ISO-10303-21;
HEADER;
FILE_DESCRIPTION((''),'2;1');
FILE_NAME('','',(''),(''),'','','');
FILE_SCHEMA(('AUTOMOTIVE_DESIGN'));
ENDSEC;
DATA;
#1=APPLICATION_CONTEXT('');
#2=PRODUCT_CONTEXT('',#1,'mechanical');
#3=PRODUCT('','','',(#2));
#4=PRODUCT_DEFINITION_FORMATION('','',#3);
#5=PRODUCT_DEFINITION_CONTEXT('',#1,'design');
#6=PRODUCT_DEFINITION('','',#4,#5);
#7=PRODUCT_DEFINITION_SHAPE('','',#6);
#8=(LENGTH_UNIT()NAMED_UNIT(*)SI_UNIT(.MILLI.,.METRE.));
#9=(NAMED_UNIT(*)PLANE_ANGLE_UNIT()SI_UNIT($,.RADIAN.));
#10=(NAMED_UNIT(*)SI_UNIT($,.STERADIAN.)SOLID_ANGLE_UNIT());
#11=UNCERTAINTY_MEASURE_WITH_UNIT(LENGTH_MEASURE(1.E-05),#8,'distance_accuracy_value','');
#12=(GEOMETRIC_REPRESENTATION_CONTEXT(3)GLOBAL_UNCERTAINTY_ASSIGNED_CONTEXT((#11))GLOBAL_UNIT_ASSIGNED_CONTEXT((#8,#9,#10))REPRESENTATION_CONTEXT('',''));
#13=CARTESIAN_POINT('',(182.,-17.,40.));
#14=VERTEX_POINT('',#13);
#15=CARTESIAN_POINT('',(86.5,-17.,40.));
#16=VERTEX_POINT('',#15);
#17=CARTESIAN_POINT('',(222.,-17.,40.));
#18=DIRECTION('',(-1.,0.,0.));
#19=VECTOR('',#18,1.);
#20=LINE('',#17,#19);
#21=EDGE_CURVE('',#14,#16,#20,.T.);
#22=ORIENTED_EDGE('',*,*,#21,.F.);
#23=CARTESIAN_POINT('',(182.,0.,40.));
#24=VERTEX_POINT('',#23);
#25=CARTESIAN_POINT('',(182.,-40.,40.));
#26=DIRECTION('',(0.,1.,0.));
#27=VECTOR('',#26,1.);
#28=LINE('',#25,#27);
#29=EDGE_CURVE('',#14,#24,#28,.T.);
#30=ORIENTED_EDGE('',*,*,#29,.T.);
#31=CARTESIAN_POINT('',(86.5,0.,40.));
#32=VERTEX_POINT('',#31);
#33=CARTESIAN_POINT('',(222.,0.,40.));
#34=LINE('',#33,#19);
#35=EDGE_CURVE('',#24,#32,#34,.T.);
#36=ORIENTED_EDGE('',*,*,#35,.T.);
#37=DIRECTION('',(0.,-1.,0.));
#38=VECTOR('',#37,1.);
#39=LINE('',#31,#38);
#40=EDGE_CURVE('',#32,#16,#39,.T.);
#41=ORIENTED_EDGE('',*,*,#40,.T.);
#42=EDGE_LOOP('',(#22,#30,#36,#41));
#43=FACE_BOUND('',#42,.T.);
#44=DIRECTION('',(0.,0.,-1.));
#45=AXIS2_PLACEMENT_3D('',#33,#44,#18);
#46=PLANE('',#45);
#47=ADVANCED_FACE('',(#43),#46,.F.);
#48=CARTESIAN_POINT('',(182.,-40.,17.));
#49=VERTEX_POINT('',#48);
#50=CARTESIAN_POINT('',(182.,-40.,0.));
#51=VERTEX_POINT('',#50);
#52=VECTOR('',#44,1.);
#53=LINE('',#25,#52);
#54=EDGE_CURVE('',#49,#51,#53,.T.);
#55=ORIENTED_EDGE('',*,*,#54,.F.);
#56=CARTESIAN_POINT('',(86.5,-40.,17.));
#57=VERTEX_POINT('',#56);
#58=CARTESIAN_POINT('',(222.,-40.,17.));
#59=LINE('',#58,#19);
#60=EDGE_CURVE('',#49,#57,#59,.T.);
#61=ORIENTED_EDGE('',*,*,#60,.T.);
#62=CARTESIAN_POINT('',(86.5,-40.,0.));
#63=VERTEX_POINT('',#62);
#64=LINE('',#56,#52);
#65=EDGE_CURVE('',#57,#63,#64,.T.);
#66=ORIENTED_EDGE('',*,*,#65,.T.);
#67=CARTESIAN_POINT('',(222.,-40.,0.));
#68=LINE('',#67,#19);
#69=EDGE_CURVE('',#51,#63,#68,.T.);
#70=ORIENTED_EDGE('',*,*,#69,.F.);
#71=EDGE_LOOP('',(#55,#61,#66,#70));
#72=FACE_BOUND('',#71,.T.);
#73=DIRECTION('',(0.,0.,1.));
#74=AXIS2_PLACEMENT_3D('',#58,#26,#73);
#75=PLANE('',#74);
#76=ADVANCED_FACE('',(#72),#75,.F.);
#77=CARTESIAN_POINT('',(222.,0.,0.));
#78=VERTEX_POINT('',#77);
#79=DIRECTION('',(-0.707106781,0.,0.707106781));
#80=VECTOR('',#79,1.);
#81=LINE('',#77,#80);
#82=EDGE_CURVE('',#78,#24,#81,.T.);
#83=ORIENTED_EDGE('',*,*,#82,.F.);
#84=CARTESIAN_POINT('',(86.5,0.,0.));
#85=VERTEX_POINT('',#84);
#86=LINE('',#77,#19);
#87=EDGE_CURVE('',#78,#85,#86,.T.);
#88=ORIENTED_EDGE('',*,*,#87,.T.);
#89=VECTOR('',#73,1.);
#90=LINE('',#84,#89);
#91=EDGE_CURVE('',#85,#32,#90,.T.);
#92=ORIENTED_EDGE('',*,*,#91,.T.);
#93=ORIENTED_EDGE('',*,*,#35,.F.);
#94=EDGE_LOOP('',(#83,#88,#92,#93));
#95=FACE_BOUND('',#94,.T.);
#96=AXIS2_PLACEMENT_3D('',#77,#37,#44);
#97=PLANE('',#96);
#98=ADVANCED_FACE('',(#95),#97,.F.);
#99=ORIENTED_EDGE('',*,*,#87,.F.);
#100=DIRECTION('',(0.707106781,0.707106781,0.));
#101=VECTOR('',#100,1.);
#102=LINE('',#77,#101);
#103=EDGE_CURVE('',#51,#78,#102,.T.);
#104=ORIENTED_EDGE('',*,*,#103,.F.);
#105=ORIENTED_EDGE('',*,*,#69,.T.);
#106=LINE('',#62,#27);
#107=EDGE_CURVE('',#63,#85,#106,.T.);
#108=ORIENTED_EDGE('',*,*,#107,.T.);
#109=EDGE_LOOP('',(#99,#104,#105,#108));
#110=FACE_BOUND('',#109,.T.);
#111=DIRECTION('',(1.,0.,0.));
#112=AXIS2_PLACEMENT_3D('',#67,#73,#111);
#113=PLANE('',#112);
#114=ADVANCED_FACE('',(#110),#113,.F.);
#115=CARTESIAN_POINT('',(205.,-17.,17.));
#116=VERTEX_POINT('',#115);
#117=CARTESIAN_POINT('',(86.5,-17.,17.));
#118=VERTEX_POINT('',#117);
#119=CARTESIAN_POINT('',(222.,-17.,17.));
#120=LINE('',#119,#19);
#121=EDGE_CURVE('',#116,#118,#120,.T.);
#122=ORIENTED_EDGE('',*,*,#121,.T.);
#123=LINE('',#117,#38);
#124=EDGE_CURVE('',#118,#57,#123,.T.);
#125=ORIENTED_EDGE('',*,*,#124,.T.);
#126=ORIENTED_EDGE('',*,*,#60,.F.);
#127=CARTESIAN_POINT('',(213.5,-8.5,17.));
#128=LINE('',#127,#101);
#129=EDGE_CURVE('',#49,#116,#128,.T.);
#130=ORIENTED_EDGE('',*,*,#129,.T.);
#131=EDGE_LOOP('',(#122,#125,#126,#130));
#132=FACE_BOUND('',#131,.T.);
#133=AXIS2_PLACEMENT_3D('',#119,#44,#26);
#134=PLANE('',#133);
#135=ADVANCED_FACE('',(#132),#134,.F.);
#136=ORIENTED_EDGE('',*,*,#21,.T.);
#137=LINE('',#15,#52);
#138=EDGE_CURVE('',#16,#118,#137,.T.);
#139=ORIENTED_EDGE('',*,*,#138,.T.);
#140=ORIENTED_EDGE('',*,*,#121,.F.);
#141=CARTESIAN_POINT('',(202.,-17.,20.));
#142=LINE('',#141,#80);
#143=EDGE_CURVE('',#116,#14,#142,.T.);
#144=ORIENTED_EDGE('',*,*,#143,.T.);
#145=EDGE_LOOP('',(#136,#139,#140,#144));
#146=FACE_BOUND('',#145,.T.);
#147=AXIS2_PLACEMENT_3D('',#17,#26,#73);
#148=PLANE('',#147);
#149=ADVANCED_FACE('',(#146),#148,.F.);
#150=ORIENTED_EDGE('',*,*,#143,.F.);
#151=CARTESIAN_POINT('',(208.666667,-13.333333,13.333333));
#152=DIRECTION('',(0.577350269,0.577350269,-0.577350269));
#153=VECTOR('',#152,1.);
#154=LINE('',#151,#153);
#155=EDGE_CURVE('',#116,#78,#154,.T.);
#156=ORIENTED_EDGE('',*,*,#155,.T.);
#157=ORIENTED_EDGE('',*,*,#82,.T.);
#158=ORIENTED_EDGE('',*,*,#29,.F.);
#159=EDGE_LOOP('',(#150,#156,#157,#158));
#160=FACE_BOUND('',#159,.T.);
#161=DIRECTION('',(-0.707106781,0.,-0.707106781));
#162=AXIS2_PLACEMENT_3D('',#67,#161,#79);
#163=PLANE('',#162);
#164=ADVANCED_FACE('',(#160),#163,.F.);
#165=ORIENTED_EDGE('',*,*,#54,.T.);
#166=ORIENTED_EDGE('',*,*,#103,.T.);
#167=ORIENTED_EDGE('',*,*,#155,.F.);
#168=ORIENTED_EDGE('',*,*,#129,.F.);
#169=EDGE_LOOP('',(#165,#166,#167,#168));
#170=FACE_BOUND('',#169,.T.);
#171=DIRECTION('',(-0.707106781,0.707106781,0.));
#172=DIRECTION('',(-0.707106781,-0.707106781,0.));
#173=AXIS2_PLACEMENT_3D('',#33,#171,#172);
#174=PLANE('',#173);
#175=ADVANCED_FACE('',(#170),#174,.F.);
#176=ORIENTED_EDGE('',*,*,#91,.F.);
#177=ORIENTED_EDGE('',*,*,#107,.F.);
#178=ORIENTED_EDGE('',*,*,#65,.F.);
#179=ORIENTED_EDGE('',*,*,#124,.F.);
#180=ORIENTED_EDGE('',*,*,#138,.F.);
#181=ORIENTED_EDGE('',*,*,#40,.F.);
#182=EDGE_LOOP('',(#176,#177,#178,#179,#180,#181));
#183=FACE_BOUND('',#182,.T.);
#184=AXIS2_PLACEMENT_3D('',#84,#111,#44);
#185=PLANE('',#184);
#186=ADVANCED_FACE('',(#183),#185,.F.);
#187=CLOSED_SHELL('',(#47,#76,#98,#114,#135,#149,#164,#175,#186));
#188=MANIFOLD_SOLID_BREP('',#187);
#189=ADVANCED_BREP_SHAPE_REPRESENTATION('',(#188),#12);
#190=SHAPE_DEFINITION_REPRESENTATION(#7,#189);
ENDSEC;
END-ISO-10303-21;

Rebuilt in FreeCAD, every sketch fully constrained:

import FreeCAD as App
import Part
import Sketcher

V = App.Vector


def add_polygon(sketch, points):
    """Adds a closed chain of lines whose ends are joined by coincident constraints."""
    first, n = sketch.GeometryCount, len(points)
    for a, b in zip(points, points[1:] + points[:1]):
        sketch.addGeometry(Part.LineSegment(App.Vector(*a, 0), App.Vector(*b, 0)), False)
    for i in range(n):
        sketch.addConstraint(Sketcher.Constraint("Coincident", first + i, 2, first + (i + 1) % n, 1))

doc = App.newDocument("Part")
body = doc.addObject("PartDesign::Body", "Body")

sketch1 = body.newObject("Sketcher::SketchObject", "Sketch")
sketch1.AttachmentSupport = (doc.getObject("YZ_Plane"), [""])
sketch1.MapMode = "FlatFace"
sketch1.AttachmentOffset = App.Placement(V(0, 0, 86.5), App.Rotation())
add_polygon(sketch1, [(0, 0), (0, 40), (-17, 40), (-17, 17), (-40, 17), (-40, 0)])
sketch1.addConstraint([
    Sketcher.Constraint("Vertical", 0),
    Sketcher.Constraint("Horizontal", 1),
    Sketcher.Constraint("Vertical", 2),
    Sketcher.Constraint("Horizontal", 3),
    Sketcher.Constraint("Vertical", 4),
    Sketcher.Constraint("Horizontal", 5),
    Sketcher.Constraint("Coincident", 5, 2, -1, 1),
    Sketcher.Constraint("Equal", 5, 0),
    Sketcher.Constraint("Equal", 3, 2),
    Sketcher.Constraint("DistanceX", 1, 2, 1, 1, 17.0),
    Sketcher.Constraint("DistanceX", 3, 2, 3, 1, 23.0),
])
pad1 = body.newObject("PartDesign::Pad", "Pad")
pad1.Profile = sketch1
pad1.Length = 135.5

sketch2 = body.newObject("Sketcher::SketchObject", "Sketch001")
sketch2.AttachmentSupport = (doc.getObject("XZ_Plane"), [""])
sketch2.MapMode = "FlatFace"
add_polygon(sketch2, [(222, 0), (182, 40), (222, 40)])
sketch2.addConstraint([
    Sketcher.Constraint("Horizontal", 1),
    Sketcher.Constraint("Vertical", 2),
    Sketcher.Constraint("PointOnObject", 2, 2, -1),
    Sketcher.Constraint("Equal", 1, 2),
    Sketcher.Constraint("DistanceX", 1, 1, 1, 2, 40.0),
    Sketcher.Constraint("DistanceX", -1, 1, 0, 2, 182.0),
])
pocket1 = body.newObject("PartDesign::Pocket", "Pocket")
pocket1.Profile = sketch2
pocket1.Type = "ThroughAll"
pocket1.Reversed = True

sketch3 = body.newObject("Sketcher::SketchObject", "Sketch002")
sketch3.AttachmentSupport = (doc.getObject("XY_Plane"), [""])
sketch3.MapMode = "FlatFace"
add_polygon(sketch3, [(182, -40), (222, 0), (222, -40)])
sketch3.addConstraint([
    Sketcher.Constraint("Vertical", 1),
    Sketcher.Constraint("Horizontal", 2),
    Sketcher.Constraint("PointOnObject", 0, 2, -1),
    Sketcher.Constraint("Equal", 2, 1),
    Sketcher.Constraint("DistanceX", 2, 2, 2, 1, 40.0),
    Sketcher.Constraint("DistanceX", -1, 1, 0, 2, 222.0),
])
pocket2 = body.newObject("PartDesign::Pocket", "Pocket001")
pocket2.Profile = sketch3
pocket2.Type = "ThroughAll"
pocket2.Reversed = True

doc.recompute()
